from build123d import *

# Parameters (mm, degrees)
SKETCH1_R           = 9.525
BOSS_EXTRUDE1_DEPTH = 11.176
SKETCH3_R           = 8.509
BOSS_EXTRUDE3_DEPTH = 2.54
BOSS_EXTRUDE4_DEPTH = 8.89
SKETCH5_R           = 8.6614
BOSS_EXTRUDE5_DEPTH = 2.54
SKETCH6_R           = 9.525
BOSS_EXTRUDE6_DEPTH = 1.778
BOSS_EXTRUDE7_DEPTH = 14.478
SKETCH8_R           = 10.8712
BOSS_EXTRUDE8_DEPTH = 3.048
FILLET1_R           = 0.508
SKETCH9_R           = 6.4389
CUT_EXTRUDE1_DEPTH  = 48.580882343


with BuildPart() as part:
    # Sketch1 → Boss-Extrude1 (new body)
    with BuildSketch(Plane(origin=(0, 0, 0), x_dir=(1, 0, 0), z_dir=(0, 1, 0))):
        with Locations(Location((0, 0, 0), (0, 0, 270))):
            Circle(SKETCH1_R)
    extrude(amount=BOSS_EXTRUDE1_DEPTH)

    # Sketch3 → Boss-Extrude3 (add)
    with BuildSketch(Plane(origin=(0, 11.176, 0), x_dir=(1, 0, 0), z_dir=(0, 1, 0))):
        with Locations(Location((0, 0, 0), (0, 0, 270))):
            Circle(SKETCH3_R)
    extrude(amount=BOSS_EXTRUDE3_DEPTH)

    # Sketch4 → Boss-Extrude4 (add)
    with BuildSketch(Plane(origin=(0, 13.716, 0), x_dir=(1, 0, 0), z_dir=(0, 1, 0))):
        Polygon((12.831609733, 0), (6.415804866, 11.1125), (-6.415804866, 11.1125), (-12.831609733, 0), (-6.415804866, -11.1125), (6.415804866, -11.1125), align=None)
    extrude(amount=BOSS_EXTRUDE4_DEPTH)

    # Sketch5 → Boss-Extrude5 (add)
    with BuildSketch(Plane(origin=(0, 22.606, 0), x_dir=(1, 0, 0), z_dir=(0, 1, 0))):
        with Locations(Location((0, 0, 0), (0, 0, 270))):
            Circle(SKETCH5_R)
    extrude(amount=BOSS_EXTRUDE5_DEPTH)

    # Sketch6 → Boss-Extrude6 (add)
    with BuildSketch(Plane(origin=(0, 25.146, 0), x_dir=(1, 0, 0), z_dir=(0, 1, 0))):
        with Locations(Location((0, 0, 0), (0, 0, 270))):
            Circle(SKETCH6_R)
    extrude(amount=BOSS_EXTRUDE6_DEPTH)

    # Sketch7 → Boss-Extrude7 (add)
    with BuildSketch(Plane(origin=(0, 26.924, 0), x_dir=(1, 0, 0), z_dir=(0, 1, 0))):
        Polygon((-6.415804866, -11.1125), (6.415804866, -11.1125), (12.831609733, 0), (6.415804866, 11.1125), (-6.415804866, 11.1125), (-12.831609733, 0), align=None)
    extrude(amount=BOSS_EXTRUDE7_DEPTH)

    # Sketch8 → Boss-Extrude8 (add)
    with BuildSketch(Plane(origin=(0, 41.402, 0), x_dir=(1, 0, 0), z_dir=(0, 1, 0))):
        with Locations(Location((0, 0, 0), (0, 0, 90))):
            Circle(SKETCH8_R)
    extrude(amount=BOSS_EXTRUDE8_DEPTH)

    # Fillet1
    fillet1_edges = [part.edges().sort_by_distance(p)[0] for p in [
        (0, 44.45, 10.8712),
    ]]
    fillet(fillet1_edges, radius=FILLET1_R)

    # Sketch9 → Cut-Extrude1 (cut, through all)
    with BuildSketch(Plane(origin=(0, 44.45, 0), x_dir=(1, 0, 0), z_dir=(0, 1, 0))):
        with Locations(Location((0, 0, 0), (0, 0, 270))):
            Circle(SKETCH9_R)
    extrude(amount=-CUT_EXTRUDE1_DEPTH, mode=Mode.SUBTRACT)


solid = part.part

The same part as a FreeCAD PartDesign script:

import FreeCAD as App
import Part
import Sketcher

V = App.Vector
Q = App.Units.Quantity


def edges_at(feature, points):
    """Names of the edges that pass closest to the given points."""
    edges = feature.Shape.Edges
    near = lambda p: min(range(len(edges)), key=lambda i: edges[i].distToShape(Part.Vertex(*p))[0])
    return sorted({f"Edge{near(p) + 1}" for p in points})


def add_polygon(sketch, points):
    """Adds a closed chain of lines whose ends are joined by coincident constraints."""
    first, n = sketch.GeometryCount, len(points)
    for a, b in zip(points, points[1:] + points[:1]):
        sketch.addGeometry(Part.LineSegment(App.Vector(*a, 0), App.Vector(*b, 0)), False)
    for i in range(n):
        sketch.addConstraint(Sketcher.Constraint("Coincident", first + i, 2, first + (i + 1) % n, 1))

doc = App.newDocument("Part")
body = doc.addObject("PartDesign::Body", "Body")

# Sketch on XZ plane
sketch1 = body.newObject("Sketcher::SketchObject", "Sketch")
sketch1.AttachmentSupport = (doc.getObject("XZ_Plane"), [""])
sketch1.MapMode = "FlatFace"
sketch1.addGeometry(Part.Circle(V(0, 0, 0), V(0, 0, 1), 9.525), False)
sketch1.addConstraint(Sketcher.Constraint("Coincident", 0, 3, -1, 1))
sketch1.addConstraint(Sketcher.Constraint("Diameter", 0, Q("0.75 in")))
pad1 = body.newObject("PartDesign::Pad", "Pad")
pad1.Profile = sketch1
pad1.Length = Q("0.44 in")
pad1.Reversed = True

# Sketch on XZ plane
sketch2 = body.newObject("Sketcher::SketchObject", "Sketch001")
sketch2.AttachmentSupport = (doc.getObject("XZ_Plane"), [""])
sketch2.MapMode = "FlatFace"
sketch2.AttachmentOffset = App.Placement(V(0, 0, -0.44 * 25.4), App.Rotation())
sketch2.addGeometry(Part.Circle(V(0, 0, 0), V(0, 0, 1), 8.509), False)
sketch2.addConstraint(Sketcher.Constraint("Coincident", 0, 3, -1, 1))
sketch2.addConstraint(Sketcher.Constraint("Diameter", 0, Q("0.67 in")))
pad2 = body.newObject("PartDesign::Pad", "Pad001")
pad2.Profile = sketch2
pad2.Length = Q("0.1 in")
pad2.Reversed = True

# Sketch on XZ plane
sketch3 = body.newObject("Sketcher::SketchObject", "Sketch002")
sketch3.AttachmentSupport = (doc.getObject("XZ_Plane"), [""])
sketch3.MapMode = "FlatFace"
sketch3.AttachmentOffset = App.Placement(V(0, 0, -0.54 * 25.4), App.Rotation())
add_polygon(sketch3, [(12.83161, 0), (6.415805, -11.1125), (-6.415805, -11.1125), (-12.83161, 0), (-6.415805, 11.1125), (6.415805, 11.1125)])  # lines 0-5
sketch3.addConstraint(Sketcher.Constraint("Horizontal", 1))
sketch3.addConstraint(Sketcher.Constraint("Horizontal", 4))
sketch3.addConstraint(Sketcher.Constraint("Symmetric", 0, 2, 3, 2, -1, 1))
sketch3.addConstraint(Sketcher.Constraint("Symmetric", 2, 2, 5, 2, -1, 1))
sketch3.addConstraint(Sketcher.Constraint("PointOnObject", 2, 2, -1))
sketch3.addConstraint(Sketcher.Constraint("Parallel", 2, 5))
sketch3.addConstraint(Sketcher.Constraint("Vertical", 1, 2, 3, 2))
sketch3.addConstraint(Sketcher.Constraint("Angle", 0, Q("-120 deg")))
sketch3.addConstraint(Sketcher.Constraint("DistanceY", 0, 2, -1, 1, Q("0.4375 in")))
sketch3.addConstraint(Sketcher.Constraint("DistanceX", 1, 2, 1, 1, 12.83161))
pad3 = body.newObject("PartDesign::Pad", "Pad002")
pad3.Profile = sketch3
pad3.Length = Q("0.35 in")
pad3.Reversed = True

# Sketch on XZ plane
sketch4 = body.newObject("Sketcher::SketchObject", "Sketch003")
sketch4.AttachmentSupport = (doc.getObject("XZ_Plane"), [""])
sketch4.MapMode = "FlatFace"
sketch4.AttachmentOffset = App.Placement(V(0, 0, -0.89 * 25.4), App.Rotation())
sketch4.addGeometry(Part.Circle(V(0, 0, 0), V(0, 0, 1), 8.6614), False)
sketch4.addConstraint(Sketcher.Constraint("Coincident", 0, 3, -1, 1))
sketch4.addConstraint(Sketcher.Constraint("Diameter", 0, Q("0.682 in")))
pad4 = body.newObject("PartDesign::Pad", "Pad003")
pad4.Profile = sketch4
pad4.Length = Q("0.1 in")
pad4.Reversed = True

# Sketch on XZ plane
sketch5 = body.newObject("Sketcher::SketchObject", "Sketch004")
sketch5.AttachmentSupport = (doc.getObject("XZ_Plane"), [""])
sketch5.MapMode = "FlatFace"
sketch5.AttachmentOffset = App.Placement(V(0, 0, -0.99 * 25.4), App.Rotation())
sketch5.addGeometry(Part.Circle(V(0, 0, 0), V(0, 0, 1), 9.525), False)
sketch5.addConstraint(Sketcher.Constraint("Coincident", 0, 3, -1, 1))
sketch5.addConstraint(Sketcher.Constraint("Diameter", 0, Q("0.75 in")))
pad5 = body.newObject("PartDesign::Pad", "Pad004")
pad5.Profile = sketch5
pad5.Length = Q("0.07 in")
pad5.Reversed = True

# Sketch on XZ plane
sketch6 = body.newObject("Sketcher::SketchObject", "Sketch005")
sketch6.AttachmentSupport = (doc.getObject("XZ_Plane"), [""])
sketch6.MapMode = "FlatFace"
sketch6.AttachmentOffset = App.Placement(V(0, 0, -1.06 * 25.4), App.Rotation())
add_polygon(sketch6, [(-6.415805, 11.1125), (6.415805, 11.1125), (12.83161, 0), (6.415805, -11.1125), (-6.415805, -11.1125), (-12.83161, 0)])  # lines 0-5
sketch6.addConstraint(Sketcher.Constraint("Horizontal", 0))
sketch6.addConstraint(Sketcher.Constraint("Horizontal", 3))
sketch6.addConstraint(Sketcher.Constraint("Symmetric", 0, 2, 3, 2, -1, 1))
sketch6.addConstraint(Sketcher.Constraint("Symmetric", 1, 2, 4, 2, -1, 1))
sketch6.addConstraint(Sketcher.Constraint("PointOnObject", 1, 2, -1))
sketch6.addConstraint(Sketcher.Constraint("Parallel", 2, 5))
sketch6.addConstraint(Sketcher.Constraint("Vertical", 0, 2, 2, 2))
sketch6.addConstraint(Sketcher.Constraint("Angle", 1, Q("-60 deg")))
sketch6.addConstraint(Sketcher.Constraint("DistanceY", -1, 1, 0, 2, Q("0.4375 in")))
sketch6.addConstraint(Sketcher.Constraint("DistanceX", 0, 1, 0, 2, 12.83161))
pad6 = body.newObject("PartDesign::Pad", "Pad005")
pad6.Profile = sketch6
pad6.Length = Q("0.57 in")
pad6.Reversed = True

# Sketch on XZ plane
sketch7 = body.newObject("Sketcher::SketchObject", "Sketch006")
sketch7.AttachmentSupport = (doc.getObject("XZ_Plane"), [""])
sketch7.MapMode = "FlatFace"
sketch7.AttachmentOffset = App.Placement(V(0, 0, -1.63 * 25.4), App.Rotation())
sketch7.addGeometry(Part.Circle(V(0, 0, 0), V(0, 0, 1), 10.8712), False)
sketch7.addConstraint(Sketcher.Constraint("Coincident", 0, 3, -1, 1))
sketch7.addConstraint(Sketcher.Constraint("Diameter", 0, Q("0.856 in")))
pad7 = body.newObject("PartDesign::Pad", "Pad006")
pad7.Profile = sketch7
pad7.Length = Q("0.12 in")
pad7.Reversed = True
doc.recompute()

fillet = body.newObject("PartDesign::Fillet", "Fillet")
fillet.Base = (pad7, edges_at(pad7, [(0, 44.45, 10.871)]))
fillet.Radius = Q("0.02 in")

# Sketch on XZ plane
sketch8 = body.newObject("Sketcher::SketchObject", "Sketch007")
sketch8.AttachmentSupport = (doc.getObject("XZ_Plane"), [""])
sketch8.MapMode = "FlatFace"
sketch8.AttachmentOffset = App.Placement(V(0, 0, -1.75 * 25.4), App.Rotation())
sketch8.addGeometry(Part.Circle(V(0, 0, 0), V(0, 0, 1), 6.4389), False)
sketch8.addConstraint(Sketcher.Constraint("Coincident", 0, 3, -1, 1))
sketch8.addConstraint(Sketcher.Constraint("Diameter", 0, Q("0.507 in")))
pocket1 = body.newObject("PartDesign::Pocket", "Pocket")
pocket1.Profile = sketch8
pocket1.Type = "ThroughAll"
pocket1.Reversed = True

doc.recompute()
